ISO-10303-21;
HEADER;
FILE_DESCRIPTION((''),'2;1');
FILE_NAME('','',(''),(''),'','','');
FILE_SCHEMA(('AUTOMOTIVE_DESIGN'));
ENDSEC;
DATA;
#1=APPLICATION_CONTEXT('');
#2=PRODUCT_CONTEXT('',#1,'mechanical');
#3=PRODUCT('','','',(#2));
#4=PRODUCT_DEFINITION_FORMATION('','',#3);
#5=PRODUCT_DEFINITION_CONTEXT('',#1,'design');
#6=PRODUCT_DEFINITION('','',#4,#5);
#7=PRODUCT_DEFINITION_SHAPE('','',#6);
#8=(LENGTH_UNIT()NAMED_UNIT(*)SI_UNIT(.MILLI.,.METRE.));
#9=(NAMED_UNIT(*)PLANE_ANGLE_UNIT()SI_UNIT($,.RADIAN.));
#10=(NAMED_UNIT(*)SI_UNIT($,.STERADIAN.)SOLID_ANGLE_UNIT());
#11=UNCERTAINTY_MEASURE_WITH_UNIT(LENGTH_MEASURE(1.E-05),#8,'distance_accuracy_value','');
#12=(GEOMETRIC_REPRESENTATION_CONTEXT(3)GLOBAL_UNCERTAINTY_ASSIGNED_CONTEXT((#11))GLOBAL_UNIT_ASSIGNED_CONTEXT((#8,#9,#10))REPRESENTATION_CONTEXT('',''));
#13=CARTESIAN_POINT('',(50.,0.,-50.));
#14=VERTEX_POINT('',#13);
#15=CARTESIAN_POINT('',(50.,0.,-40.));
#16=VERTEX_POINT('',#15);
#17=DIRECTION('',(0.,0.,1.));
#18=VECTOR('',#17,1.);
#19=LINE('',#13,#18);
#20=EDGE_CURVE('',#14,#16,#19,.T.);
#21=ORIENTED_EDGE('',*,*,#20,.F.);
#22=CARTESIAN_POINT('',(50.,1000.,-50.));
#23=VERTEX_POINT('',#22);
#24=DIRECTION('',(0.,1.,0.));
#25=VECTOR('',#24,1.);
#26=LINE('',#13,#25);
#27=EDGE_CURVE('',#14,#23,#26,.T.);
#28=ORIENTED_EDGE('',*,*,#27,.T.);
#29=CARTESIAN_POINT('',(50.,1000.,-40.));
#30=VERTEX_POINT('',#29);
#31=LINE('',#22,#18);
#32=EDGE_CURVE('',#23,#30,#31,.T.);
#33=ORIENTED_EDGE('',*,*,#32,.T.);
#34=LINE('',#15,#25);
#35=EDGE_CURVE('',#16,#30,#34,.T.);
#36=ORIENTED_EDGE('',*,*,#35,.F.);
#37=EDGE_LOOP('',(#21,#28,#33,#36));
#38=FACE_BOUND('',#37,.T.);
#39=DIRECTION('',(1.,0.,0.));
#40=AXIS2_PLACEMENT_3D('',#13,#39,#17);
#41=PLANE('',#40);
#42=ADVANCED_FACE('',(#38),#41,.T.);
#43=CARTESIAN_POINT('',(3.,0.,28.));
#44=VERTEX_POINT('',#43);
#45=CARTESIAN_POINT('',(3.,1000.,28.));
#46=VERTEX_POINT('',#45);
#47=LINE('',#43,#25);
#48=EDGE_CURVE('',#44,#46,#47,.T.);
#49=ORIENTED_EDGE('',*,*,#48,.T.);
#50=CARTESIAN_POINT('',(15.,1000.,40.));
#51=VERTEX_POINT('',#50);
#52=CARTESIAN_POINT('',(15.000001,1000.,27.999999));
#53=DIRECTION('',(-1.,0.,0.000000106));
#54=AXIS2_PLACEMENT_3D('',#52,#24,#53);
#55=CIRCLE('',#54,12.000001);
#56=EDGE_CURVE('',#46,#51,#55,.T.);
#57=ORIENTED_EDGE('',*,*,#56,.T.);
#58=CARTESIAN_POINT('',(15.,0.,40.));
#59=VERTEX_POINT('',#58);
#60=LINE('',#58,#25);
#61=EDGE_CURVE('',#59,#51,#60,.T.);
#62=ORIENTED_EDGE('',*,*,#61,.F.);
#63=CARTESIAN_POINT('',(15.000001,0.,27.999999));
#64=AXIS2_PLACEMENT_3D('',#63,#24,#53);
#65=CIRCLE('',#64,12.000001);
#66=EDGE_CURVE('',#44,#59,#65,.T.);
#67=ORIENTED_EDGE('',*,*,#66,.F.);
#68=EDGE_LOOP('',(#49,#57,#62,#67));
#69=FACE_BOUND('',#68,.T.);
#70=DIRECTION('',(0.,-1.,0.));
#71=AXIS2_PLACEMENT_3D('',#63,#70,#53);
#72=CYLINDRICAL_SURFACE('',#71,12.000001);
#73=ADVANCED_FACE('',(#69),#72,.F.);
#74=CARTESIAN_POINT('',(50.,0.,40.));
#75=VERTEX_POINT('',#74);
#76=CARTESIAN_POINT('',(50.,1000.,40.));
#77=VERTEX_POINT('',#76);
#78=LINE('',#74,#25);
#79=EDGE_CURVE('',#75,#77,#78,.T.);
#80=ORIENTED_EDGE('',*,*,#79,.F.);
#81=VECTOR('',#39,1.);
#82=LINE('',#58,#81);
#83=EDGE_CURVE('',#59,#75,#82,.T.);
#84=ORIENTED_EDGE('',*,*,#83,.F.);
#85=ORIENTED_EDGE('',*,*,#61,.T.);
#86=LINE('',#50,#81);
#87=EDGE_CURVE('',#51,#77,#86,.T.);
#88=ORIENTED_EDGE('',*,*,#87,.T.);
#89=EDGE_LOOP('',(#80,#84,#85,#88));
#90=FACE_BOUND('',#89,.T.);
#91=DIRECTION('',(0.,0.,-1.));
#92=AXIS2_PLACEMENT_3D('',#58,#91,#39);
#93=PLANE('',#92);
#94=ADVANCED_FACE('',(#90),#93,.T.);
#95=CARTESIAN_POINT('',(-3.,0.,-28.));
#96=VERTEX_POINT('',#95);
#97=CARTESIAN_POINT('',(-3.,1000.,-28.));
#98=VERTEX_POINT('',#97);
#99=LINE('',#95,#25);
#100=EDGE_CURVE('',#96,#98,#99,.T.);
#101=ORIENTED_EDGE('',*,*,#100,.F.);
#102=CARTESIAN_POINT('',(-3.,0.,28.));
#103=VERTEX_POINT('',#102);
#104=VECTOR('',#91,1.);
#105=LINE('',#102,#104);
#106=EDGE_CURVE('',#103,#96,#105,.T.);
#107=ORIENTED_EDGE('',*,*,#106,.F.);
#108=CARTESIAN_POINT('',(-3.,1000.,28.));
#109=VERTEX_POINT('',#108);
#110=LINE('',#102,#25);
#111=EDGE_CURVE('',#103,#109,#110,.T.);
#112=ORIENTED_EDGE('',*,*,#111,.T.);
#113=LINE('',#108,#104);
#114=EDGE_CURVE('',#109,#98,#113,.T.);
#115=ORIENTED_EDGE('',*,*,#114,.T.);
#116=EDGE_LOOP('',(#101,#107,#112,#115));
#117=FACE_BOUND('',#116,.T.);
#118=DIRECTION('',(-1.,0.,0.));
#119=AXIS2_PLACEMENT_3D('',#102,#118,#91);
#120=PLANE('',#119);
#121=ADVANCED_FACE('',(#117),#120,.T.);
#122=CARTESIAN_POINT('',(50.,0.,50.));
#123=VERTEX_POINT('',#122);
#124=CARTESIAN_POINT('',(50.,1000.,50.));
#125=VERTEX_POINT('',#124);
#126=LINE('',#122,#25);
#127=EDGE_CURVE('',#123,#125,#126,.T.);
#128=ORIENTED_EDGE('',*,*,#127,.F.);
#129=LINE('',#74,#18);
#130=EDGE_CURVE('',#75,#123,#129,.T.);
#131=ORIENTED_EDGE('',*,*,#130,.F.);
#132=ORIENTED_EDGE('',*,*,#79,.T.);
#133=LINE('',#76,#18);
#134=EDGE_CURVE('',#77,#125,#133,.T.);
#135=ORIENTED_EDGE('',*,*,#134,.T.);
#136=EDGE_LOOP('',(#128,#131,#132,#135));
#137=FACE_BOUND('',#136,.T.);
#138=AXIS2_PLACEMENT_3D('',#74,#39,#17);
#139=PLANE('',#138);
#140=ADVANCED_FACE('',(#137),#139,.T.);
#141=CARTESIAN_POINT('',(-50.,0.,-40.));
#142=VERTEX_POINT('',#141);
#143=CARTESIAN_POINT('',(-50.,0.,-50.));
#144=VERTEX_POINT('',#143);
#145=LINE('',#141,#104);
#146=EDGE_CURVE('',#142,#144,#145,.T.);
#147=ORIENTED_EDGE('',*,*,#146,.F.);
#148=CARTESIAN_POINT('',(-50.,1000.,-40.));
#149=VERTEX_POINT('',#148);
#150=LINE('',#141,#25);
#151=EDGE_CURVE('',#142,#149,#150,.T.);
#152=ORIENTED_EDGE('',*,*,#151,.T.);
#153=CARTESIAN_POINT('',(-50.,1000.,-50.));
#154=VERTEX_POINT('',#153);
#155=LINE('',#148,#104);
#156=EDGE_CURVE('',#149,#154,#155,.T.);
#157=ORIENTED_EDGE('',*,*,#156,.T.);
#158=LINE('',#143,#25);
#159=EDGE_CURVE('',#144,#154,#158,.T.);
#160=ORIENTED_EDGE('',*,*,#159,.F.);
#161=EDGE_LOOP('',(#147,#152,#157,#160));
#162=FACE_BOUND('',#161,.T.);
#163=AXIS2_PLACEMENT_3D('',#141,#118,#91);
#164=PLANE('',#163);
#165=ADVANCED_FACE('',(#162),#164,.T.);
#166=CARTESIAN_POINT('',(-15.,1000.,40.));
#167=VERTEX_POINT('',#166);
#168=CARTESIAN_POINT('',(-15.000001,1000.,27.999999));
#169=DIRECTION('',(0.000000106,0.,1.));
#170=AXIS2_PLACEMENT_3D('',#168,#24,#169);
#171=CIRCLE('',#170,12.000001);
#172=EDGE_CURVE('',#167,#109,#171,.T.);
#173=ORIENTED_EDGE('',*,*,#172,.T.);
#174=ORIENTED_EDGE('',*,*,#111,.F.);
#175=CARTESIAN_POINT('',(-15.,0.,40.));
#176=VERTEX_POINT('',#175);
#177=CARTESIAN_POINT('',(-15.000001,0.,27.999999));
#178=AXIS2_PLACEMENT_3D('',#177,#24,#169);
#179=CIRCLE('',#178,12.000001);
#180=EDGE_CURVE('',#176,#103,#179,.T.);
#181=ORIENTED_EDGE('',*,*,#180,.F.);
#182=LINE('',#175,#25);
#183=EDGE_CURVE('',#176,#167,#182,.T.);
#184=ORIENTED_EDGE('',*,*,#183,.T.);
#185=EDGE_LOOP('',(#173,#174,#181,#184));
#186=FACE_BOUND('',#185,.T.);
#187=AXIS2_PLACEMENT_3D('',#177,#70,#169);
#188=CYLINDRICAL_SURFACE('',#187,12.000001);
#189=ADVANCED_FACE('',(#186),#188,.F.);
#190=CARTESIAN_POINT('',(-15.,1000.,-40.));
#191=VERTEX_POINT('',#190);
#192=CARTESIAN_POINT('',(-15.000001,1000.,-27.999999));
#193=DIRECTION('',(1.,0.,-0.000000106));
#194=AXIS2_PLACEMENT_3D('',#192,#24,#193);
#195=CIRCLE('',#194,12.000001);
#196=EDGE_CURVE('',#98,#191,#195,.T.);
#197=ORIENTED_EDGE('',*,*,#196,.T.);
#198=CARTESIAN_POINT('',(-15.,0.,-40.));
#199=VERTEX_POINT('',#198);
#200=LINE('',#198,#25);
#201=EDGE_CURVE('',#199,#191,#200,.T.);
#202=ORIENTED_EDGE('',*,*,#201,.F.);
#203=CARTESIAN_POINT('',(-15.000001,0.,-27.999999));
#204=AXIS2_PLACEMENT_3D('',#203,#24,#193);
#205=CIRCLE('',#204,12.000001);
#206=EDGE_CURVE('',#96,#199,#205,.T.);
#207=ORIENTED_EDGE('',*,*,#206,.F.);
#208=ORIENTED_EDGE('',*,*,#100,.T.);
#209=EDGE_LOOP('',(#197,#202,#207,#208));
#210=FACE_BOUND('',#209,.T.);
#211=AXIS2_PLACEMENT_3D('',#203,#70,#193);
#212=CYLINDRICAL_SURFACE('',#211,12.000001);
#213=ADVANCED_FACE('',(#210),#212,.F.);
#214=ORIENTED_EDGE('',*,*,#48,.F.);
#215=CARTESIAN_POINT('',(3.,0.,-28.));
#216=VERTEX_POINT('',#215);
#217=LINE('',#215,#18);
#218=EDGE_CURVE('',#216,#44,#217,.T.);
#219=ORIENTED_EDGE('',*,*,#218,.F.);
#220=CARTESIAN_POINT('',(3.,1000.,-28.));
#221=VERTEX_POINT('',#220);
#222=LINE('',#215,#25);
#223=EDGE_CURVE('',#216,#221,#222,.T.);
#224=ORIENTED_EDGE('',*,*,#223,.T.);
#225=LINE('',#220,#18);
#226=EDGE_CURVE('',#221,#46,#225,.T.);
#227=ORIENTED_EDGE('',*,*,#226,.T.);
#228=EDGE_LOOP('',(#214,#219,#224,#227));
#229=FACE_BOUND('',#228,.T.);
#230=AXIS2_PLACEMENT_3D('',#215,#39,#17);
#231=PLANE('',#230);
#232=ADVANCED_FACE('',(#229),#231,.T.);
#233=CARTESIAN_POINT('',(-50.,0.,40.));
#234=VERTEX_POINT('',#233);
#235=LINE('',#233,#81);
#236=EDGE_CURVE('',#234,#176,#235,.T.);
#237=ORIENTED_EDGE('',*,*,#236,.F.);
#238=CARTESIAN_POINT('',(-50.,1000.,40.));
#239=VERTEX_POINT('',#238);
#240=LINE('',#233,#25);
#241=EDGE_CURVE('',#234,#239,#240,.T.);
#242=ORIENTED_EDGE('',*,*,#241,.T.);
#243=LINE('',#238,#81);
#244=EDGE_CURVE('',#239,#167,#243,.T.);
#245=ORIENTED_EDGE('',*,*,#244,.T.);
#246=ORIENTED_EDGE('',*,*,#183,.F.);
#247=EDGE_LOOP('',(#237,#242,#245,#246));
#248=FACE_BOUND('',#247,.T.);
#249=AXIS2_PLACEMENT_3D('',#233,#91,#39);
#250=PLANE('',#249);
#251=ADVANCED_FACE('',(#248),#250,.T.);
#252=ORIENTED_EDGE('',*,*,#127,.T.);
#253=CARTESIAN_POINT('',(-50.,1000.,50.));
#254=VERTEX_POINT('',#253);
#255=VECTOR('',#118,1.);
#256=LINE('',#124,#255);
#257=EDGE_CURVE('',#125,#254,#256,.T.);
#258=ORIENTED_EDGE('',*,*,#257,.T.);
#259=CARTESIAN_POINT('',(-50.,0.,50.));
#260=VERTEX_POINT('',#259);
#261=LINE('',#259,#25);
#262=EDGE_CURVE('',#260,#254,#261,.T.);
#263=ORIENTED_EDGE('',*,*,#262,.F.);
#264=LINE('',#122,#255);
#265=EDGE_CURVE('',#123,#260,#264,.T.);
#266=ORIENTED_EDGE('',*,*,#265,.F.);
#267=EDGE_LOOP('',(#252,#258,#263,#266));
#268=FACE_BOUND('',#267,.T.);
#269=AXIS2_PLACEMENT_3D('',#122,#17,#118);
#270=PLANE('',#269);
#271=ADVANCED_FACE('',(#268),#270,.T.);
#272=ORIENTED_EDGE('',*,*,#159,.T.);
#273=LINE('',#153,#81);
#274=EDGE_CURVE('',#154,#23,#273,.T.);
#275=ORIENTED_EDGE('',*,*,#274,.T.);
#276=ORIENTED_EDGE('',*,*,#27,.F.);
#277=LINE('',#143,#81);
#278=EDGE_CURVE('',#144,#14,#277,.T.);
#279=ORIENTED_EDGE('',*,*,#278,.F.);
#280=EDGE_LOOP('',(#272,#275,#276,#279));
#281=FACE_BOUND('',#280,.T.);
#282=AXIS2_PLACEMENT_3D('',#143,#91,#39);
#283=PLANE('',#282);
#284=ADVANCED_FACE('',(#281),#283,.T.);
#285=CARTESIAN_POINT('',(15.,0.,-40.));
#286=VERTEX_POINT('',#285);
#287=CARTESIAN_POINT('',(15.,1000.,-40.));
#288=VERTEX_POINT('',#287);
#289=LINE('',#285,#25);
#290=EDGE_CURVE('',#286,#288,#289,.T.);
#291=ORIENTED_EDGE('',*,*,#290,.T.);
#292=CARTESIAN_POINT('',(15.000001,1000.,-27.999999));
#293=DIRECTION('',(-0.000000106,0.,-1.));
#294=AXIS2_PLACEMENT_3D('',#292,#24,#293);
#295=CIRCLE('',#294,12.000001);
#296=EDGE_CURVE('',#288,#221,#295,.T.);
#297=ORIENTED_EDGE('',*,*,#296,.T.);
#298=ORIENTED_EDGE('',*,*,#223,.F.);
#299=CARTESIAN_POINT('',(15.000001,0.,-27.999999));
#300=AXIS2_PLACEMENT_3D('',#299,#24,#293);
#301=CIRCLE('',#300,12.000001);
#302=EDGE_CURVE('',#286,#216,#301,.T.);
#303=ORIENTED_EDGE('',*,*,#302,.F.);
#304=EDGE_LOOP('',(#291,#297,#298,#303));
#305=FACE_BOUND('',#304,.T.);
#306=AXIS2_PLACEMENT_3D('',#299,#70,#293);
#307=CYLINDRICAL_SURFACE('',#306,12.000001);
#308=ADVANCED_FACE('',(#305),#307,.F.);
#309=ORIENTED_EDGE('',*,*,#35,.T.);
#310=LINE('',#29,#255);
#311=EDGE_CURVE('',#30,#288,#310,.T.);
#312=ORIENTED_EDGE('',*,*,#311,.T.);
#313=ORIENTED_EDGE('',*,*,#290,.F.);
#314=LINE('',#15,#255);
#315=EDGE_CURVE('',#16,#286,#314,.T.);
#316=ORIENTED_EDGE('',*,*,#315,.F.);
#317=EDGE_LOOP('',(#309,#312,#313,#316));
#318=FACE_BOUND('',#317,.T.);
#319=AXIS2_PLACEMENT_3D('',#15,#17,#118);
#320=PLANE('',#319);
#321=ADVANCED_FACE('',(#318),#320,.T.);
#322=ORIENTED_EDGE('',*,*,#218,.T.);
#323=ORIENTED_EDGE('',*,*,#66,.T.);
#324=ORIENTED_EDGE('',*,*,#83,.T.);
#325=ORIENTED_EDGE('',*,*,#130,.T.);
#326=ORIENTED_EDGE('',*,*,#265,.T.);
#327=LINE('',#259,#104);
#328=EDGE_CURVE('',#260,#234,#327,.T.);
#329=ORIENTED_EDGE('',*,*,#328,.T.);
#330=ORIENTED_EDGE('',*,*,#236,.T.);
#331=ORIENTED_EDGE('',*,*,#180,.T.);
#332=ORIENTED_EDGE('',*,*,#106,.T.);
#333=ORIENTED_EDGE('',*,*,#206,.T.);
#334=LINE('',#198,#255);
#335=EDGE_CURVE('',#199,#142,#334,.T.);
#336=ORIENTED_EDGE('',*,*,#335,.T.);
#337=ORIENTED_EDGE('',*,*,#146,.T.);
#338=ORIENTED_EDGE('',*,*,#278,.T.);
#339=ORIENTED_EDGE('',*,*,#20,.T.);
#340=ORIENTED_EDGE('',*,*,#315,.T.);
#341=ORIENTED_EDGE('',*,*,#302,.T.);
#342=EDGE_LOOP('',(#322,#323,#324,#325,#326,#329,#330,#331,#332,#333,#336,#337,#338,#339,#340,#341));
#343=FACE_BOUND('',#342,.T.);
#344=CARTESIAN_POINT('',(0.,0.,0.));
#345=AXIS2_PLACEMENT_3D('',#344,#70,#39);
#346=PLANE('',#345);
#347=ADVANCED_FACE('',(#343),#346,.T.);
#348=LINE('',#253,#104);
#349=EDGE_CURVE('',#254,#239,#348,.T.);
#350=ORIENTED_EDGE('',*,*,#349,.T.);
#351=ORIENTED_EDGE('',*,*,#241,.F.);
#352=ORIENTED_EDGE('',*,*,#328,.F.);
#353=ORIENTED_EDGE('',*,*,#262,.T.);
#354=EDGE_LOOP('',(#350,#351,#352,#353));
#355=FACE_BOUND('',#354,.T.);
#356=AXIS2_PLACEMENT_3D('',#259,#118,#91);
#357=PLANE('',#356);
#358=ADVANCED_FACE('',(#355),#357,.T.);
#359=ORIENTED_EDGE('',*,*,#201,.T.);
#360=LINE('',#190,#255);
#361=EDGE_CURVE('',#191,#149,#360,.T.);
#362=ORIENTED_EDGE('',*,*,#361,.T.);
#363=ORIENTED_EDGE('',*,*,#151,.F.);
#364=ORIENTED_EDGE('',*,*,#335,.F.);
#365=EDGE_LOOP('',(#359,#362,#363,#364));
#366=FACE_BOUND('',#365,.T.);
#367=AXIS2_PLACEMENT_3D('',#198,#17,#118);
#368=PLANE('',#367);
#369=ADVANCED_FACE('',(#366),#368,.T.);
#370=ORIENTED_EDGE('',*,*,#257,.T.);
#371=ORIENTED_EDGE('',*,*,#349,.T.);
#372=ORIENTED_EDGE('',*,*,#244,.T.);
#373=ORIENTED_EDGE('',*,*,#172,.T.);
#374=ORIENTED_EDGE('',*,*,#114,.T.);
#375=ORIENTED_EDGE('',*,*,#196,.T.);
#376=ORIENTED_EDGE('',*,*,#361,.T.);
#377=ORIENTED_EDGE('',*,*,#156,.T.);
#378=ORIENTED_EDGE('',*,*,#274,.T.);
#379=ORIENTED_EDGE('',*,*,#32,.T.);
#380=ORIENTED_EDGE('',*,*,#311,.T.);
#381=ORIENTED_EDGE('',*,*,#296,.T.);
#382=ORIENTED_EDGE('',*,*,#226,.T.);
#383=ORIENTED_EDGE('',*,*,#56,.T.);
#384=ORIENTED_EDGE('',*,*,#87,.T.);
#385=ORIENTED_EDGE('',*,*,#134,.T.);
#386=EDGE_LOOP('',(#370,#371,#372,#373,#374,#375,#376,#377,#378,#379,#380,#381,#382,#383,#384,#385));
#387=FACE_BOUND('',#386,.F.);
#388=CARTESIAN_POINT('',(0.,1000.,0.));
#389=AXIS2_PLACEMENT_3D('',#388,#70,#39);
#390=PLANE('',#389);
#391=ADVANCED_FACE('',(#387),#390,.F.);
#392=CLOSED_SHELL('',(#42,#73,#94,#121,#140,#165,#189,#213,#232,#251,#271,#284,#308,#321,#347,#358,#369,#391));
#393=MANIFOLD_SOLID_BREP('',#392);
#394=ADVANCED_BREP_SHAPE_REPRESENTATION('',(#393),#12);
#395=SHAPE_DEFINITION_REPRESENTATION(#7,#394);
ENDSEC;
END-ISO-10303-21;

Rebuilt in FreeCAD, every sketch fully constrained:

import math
import FreeCAD as App
import Part
import Sketcher

V = App.Vector
Q = App.Units.Quantity

doc = App.newDocument("Part")
body = doc.addObject("PartDesign::Body", "Body")

# Sketch on XZ plane
sketch1 = body.newObject("Sketcher::SketchObject", "Sketch")
sketch1.AttachmentSupport = (doc.getObject("XZ_Plane"), [""])
sketch1.MapMode = "FlatFace"
sketch1.addGeometry([
    Part.LineSegment(V(50, -50, 0), V(50, -40, 0)),  # 0
    Part.LineSegment(V(50, -40, 0), V(15, -40, 0)),  # 1
    Part.ArcOfCircle(Part.Circle(V(15, -28, 0), V(0, 0, 1), 12), math.radians(-180), math.radians(-90)),  # 2
    Part.LineSegment(V(3, -28, 0), V(3, 28, 0)),  # 3
    Part.ArcOfCircle(Part.Circle(V(15, 28, 0), V(0, 0, 1), 12), math.radians(90), math.radians(180)),  # 4
    Part.LineSegment(V(15, 40, 0), V(50, 40, 0)),  # 5
    Part.LineSegment(V(50, 40, 0), V(50, 50, 0)),  # 6
    Part.LineSegment(V(50, 50, 0), V(-50, 50, 0)),  # 7
    Part.LineSegment(V(-50, 50, 0), V(-50, 40, 0)),  # 8
    Part.LineSegment(V(-50, 40, 0), V(-15, 40, 0)),  # 9
    Part.ArcOfCircle(Part.Circle(V(-15, 28, 0), V(0, 0, 1), 12), math.radians(0), math.radians(90)),  # 10
    Part.LineSegment(V(-3, 28, 0), V(-3, -28, 0)),  # 11
    Part.ArcOfCircle(Part.Circle(V(-15, -28, 0), V(0, 0, 1), 12), math.radians(-90), math.radians(0)),  # 12
    Part.LineSegment(V(-15, -40, 0), V(-50, -40, 0)),  # 13
    Part.LineSegment(V(-50, -40, 0), V(-50, -50, 0)),  # 14
    Part.LineSegment(V(-50, -50, 0), V(50, -50, 0)),  # 15
], False)
sketch1.addConstraint([
    Sketcher.Constraint("Coincident", 0, 2, 1, 1),
    Sketcher.Constraint("Tangent", 1, 2, 2, 2),
    Sketcher.Constraint("Tangent", 2, 1, 3, 1),
    Sketcher.Constraint("Tangent", 3, 2, 4, 2),
    Sketcher.Constraint("Tangent", 4, 1, 5, 1),
    Sketcher.Constraint("Coincident", 5, 2, 6, 1),
    Sketcher.Constraint("Coincident", 6, 2, 7, 1),
    Sketcher.Constraint("Coincident", 7, 2, 8, 1),
    Sketcher.Constraint("Coincident", 8, 2, 9, 1),
    Sketcher.Constraint("Tangent", 9, 2, 10, 2),
    Sketcher.Constraint("Tangent", 10, 1, 11, 1),
    Sketcher.Constraint("Tangent", 11, 2, 12, 2),
    Sketcher.Constraint("Tangent", 12, 1, 13, 1),
    Sketcher.Constraint("Coincident", 13, 2, 14, 1),
    Sketcher.Constraint("Coincident", 14, 2, 15, 1),
    Sketcher.Constraint("Coincident", 15, 2, 0, 1),
    Sketcher.Constraint("Vertical", 0),
    Sketcher.Constraint("Horizontal", 1),
    Sketcher.Constraint("Vertical", 3),
    Sketcher.Constraint("Horizontal", 5),
    Sketcher.Constraint("Vertical", 6),
    Sketcher.Constraint("Horizontal", 7),
    Sketcher.Constraint("Vertical", 8),
    Sketcher.Constraint("Horizontal", 9),
    Sketcher.Constraint("Vertical", 11),
    Sketcher.Constraint("Horizontal", 13),
    Sketcher.Constraint("Vertical", 14),
    Sketcher.Constraint("Horizontal", 15),
    Sketcher.Constraint("Equal", 2, 4),
    Sketcher.Constraint("Equal", 4, 10),
    Sketcher.Constraint("Equal", 10, 12),
    Sketcher.Constraint("Symmetric", 2, 3, 10, 3, -1, 1),
    Sketcher.Constraint("Symmetric", 5, 2, 13, 2, -1, 1),
    Sketcher.Constraint("Symmetric", 7, 2, 15, 2, -1, 1),
    Sketcher.Constraint("Symmetric", 5, 2, 8, 2, -2),
    Sketcher.Constraint("Radius", 2, Q("12.000001 mm")),
    Sketcher.Constraint("DistanceX", 1, 2, 1, 1, Q("35 mm")),
    Sketcher.Constraint("DistanceX", 7, 2, 7, 1, Q("100 mm")),
    Sketcher.Constraint("DistanceY", 0, 1, 0, 2, Q("10 mm")),
    Sketcher.Constraint("DistanceY", 3, 1, 3, 2, Q("56 mm")),
])
pad1 = body.newObject("PartDesign::Pad", "Pad")
pad1.Profile = sketch1
pad1.Length = 1000
pad1.Reversed = True

doc.recompute()
